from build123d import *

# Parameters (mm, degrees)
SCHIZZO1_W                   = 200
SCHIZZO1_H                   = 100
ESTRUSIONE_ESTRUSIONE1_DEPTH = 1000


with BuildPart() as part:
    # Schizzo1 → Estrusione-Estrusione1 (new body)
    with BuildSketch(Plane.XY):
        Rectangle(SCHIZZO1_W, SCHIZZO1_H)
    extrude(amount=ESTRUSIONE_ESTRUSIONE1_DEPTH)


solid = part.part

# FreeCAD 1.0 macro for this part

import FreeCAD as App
import Part
import Sketcher

V = App.Vector
Q = App.Units.Quantity


def add_polygon(sketch, points):
    """Adds a closed chain of lines whose ends are joined by coincident constraints."""
    first, n = sketch.GeometryCount, len(points)
    for a, b in zip(points, points[1:] + points[:1]):
        sketch.addGeometry(Part.LineSegment(App.Vector(*a, 0), App.Vector(*b, 0)), False)
    for i in range(n):
        sketch.addConstraint(Sketcher.Constraint("Coincident", first + i, 2, first + (i + 1) % n, 1))

doc = App.newDocument("Part")
params = doc.addObject("Spreadsheet::Sheet", "Params")
for row, (alias, value) in enumerate([
    ("sketch1_width", "200 mm"),
    ("sketch1_height", "100 mm"),
    ("pad1_length", "1000 mm"),
], start=1):
    params.set(f"A{row}", alias)
    params.set(f"B{row}", "=" + value)
    params.setAlias(f"B{row}", alias)

body = doc.addObject("PartDesign::Body", "Body")

sketch1 = doc.addObject("Sketcher::SketchObject", "Sketch")
body.addObject(sketch1)
sketch1.AttachmentSupport = (doc.XY_Plane, [""])
sketch1.MapMode = "FlatFace"
add_polygon(sketch1, [(-100, 50), (-100, -50), (100, -50), (100, 50)])
sketch1.addConstraint(Sketcher.Constraint("Vertical", 0))
sketch1.addConstraint(Sketcher.Constraint("Horizontal", 1))
sketch1.addConstraint(Sketcher.Constraint("Vertical", 2))
sketch1.addConstraint(Sketcher.Constraint("Horizontal", 3))
sketch1.addConstraint(Sketcher.Constraint("Symmetric", 0, 2, 2, 2, -1, 1))
sketch1.addConstraint(Sketcher.Constraint("DistanceX", 1, 1, 1, 2, Q("200 mm")))
sketch1.addConstraint(Sketcher.Constraint("DistanceY", 0, 2, 0, 1, Q("100 mm")))
sketch1.setExpression("Constraints[9]", "Params.sketch1_width")
sketch1.setExpression("Constraints[10]", "Params.sketch1_height")
pad1 = doc.addObject("PartDesign::Pad", "Pad")
body.addObject(pad1)
pad1.Profile = sketch1
pad1.setExpression("Length", "Params.pad1_length")

doc.recompute()
